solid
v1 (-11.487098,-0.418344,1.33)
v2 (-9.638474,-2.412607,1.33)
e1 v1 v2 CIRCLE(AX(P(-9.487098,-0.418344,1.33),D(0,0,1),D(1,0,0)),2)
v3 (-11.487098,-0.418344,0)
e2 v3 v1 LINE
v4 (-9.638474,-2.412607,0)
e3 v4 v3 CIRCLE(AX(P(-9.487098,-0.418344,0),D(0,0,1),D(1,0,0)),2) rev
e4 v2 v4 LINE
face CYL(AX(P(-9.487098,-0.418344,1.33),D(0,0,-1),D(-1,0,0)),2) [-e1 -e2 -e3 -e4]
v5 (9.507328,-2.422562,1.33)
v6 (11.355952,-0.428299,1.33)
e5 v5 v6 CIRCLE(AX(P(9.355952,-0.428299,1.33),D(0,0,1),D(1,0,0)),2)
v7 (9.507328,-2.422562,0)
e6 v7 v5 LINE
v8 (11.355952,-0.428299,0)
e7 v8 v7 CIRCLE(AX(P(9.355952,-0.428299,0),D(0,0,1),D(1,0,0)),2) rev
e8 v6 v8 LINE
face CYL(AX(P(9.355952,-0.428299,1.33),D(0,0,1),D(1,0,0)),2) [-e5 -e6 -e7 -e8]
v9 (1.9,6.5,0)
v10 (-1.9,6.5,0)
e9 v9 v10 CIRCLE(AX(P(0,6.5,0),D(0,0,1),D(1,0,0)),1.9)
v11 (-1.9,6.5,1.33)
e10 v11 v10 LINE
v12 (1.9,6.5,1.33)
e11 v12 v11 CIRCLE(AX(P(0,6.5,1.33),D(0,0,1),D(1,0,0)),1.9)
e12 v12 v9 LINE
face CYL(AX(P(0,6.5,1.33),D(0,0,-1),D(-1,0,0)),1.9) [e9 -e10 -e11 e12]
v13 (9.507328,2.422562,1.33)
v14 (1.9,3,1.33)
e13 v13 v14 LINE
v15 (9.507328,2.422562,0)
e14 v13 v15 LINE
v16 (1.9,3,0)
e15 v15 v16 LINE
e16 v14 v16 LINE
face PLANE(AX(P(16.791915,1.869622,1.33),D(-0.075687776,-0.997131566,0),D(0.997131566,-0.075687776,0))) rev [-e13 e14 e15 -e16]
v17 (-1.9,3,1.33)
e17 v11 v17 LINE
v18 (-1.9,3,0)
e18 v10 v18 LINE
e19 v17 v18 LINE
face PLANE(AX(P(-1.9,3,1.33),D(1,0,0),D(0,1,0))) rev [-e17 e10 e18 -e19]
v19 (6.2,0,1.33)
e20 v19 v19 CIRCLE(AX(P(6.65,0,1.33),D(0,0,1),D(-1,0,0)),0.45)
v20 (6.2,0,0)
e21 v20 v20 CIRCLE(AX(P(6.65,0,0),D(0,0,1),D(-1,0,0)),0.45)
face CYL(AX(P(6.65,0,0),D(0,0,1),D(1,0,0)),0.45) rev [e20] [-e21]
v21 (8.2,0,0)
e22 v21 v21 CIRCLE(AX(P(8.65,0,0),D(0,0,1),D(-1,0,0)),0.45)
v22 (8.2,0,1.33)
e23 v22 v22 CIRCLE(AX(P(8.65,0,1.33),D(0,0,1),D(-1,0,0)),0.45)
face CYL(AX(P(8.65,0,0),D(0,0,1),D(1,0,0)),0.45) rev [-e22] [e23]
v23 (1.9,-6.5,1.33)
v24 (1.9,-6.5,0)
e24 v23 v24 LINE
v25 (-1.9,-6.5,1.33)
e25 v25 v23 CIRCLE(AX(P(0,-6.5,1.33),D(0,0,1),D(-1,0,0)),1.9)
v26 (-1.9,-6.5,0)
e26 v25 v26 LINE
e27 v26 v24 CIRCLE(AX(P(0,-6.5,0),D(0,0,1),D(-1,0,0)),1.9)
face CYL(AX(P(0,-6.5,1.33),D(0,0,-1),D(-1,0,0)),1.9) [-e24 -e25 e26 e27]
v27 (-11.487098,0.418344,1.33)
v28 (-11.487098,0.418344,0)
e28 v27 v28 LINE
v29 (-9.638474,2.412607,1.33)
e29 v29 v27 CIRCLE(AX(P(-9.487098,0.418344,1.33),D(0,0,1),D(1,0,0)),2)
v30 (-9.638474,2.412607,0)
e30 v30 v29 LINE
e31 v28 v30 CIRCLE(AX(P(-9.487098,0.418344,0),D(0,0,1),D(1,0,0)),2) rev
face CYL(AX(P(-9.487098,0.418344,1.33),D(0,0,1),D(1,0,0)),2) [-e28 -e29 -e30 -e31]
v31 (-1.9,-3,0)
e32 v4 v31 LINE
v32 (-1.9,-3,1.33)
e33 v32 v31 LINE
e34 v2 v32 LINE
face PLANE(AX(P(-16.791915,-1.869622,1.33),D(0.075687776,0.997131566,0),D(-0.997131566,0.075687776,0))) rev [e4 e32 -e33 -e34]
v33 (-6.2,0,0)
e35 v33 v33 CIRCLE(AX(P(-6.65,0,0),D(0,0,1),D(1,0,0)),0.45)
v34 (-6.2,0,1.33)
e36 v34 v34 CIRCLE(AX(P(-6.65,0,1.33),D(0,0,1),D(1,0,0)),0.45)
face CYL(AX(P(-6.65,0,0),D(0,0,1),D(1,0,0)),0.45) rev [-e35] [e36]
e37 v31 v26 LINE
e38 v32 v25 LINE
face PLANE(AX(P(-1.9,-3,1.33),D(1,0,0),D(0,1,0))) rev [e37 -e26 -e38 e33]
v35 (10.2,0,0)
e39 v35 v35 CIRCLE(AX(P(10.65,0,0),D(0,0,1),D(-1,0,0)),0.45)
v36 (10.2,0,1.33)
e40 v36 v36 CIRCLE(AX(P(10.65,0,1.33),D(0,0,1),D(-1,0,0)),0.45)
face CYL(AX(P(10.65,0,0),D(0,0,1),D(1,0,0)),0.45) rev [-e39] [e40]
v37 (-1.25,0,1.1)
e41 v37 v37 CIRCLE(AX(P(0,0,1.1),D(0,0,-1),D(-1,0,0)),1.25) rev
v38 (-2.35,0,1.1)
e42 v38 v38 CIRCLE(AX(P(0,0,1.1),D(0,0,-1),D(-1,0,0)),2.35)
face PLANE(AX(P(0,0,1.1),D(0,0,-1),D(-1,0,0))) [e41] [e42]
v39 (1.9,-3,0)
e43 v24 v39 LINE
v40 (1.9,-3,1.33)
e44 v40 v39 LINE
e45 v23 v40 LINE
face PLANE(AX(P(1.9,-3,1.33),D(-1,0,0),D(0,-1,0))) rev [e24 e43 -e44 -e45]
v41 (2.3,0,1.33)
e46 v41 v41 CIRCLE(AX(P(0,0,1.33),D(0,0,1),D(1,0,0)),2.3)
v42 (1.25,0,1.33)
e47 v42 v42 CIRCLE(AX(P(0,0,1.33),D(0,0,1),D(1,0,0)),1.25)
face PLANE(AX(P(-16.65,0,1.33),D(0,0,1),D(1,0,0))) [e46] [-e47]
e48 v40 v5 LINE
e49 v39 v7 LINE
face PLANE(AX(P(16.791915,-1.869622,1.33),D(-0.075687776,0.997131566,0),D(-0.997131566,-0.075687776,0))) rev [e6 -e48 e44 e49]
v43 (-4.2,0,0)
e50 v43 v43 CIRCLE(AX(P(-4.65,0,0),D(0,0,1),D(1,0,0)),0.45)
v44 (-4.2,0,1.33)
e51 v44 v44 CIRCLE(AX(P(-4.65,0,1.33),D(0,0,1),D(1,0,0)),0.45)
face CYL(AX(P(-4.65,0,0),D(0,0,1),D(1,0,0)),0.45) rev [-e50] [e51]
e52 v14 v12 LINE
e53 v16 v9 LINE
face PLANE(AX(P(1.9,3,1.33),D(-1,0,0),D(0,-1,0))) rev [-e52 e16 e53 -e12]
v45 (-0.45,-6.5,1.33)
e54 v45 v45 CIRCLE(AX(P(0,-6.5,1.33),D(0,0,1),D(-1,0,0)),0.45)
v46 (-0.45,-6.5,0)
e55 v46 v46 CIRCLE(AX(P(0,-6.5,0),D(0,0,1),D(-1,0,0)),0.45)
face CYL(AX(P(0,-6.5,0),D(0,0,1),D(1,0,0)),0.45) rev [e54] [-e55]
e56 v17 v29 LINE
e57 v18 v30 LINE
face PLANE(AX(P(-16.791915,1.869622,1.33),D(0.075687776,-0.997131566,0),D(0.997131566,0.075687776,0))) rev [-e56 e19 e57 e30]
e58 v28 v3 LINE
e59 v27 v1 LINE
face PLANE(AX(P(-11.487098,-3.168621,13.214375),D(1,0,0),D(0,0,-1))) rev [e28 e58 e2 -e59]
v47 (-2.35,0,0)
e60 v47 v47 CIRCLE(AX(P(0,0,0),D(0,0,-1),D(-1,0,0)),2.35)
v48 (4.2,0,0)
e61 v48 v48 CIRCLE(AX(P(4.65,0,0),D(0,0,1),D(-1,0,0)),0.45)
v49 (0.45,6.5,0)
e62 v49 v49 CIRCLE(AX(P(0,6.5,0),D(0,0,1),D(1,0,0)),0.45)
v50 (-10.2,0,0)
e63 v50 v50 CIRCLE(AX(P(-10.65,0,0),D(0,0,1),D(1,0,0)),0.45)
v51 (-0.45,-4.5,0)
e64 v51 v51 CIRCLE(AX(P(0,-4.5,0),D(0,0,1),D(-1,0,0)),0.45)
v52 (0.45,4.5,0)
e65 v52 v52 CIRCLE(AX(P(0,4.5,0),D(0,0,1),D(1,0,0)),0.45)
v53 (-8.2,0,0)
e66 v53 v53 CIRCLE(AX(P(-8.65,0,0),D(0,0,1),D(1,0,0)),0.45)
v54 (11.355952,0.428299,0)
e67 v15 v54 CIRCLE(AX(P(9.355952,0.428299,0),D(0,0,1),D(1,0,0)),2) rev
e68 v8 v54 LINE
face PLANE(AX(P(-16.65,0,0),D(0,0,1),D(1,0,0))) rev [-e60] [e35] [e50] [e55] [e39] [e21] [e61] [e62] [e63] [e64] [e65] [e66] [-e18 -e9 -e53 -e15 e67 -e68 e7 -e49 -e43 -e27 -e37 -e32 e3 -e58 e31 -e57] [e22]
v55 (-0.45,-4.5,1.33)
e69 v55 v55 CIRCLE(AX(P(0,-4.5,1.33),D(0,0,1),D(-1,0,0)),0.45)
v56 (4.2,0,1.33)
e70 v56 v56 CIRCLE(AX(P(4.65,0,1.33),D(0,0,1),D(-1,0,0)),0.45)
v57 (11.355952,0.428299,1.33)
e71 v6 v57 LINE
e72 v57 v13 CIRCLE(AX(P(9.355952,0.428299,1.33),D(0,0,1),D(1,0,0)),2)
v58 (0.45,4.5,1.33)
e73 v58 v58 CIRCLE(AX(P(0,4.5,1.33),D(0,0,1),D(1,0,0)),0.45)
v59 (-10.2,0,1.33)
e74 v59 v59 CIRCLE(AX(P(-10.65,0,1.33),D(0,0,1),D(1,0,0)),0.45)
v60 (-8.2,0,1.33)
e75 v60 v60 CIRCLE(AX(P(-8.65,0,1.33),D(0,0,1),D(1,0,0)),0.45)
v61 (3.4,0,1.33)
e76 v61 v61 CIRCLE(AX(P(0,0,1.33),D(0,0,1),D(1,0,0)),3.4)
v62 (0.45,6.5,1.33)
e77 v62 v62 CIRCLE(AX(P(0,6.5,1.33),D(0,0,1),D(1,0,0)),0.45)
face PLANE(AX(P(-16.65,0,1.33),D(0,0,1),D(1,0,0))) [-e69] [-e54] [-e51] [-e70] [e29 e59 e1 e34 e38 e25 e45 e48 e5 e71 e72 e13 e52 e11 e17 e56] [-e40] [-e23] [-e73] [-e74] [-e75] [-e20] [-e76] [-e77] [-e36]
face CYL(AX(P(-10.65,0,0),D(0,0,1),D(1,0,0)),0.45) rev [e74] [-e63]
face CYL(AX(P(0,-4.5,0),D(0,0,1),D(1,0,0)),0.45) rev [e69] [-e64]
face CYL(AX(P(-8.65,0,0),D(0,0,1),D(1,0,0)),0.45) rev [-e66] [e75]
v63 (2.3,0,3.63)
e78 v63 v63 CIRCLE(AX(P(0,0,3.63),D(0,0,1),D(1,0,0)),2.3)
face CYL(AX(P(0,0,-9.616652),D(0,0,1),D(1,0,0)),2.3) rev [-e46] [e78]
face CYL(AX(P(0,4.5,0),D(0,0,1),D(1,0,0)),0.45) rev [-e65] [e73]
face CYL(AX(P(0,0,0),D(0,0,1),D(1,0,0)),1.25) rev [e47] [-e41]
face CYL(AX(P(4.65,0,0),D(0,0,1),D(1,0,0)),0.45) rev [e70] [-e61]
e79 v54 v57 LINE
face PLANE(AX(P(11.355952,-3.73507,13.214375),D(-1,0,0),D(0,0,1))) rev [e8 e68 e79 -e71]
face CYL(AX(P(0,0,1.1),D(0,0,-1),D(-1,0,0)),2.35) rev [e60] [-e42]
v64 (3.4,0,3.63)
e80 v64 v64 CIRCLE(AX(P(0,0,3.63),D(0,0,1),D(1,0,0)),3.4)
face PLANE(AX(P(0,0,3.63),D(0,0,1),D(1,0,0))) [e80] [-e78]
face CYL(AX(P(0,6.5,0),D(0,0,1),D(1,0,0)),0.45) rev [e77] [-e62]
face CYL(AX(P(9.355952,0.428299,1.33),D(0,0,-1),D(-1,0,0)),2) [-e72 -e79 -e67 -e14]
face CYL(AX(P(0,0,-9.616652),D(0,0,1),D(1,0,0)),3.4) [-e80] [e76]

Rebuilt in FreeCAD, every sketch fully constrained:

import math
import FreeCAD as App
import Part
import Sketcher
from FreeCAD import Vector
Q = App.Units.Quantity


def edges_at(feature, points):
    """Names of the edges that pass closest to the given points."""
    edges = feature.Shape.Edges
    near = lambda p: min(range(len(edges)), key=lambda i: edges[i].distToShape(Part.Vertex(*p))[0])
    return sorted({f"Edge{near(p) + 1}" for p in points})


def add_polygon(sketch, points):
    """Adds a closed chain of lines whose ends are joined by coincident constraints."""
    first, n = sketch.GeometryCount, len(points)
    for a, b in zip(points, points[1:] + points[:1]):
        sketch.addGeometry(Part.LineSegment(App.Vector(*a, 0), App.Vector(*b, 0)), False)
    for i in range(n):
        sketch.addConstraint(Sketcher.Constraint("Coincident", first + i, 2, first + (i + 1) % n, 1))

doc = App.newDocument("Part")
body = doc.addObject("PartDesign::Body", "Body")

# Sketch on XY plane
sketch1 = doc.addObject("Sketcher::SketchObject", "Sketch")
body.addObject(sketch1)
sketch1.AttachmentSupport = (doc.XY_Plane, [""])
sketch1.MapMode = "FlatFace"
sketch1.addGeometry(Part.LineSegment(Vector(-1.9, 3, 0), Vector(-16.8, 1.9, 0)), False)
sketch1.addGeometry(Part.ArcOfCircle(Part.Circle(Vector(-16.6, 0, 0), Vector(0, 0, 1), 1.9), math.radians(94), math.radians(266)), False)
sketch1.addGeometry(Part.LineSegment(Vector(-16.8, -1.9, 0), Vector(-1.9, -3, 0)), False)
sketch1.addGeometry(Part.LineSegment(Vector(-1.9, -3, 0), Vector(-1.9, -6.5, 0)), False)
sketch1.addGeometry(Part.ArcOfCircle(Part.Circle(Vector(0, -6.5, 0), Vector(0, 0, 1), 1.9), math.radians(180), math.radians(360)), False)
sketch1.addGeometry(Part.LineSegment(Vector(1.9, -6.5, 0), Vector(1.9, -3, 0)), False)
sketch1.addGeometry(Part.LineSegment(Vector(1.9, -3, 0), Vector(16.8, -1.9, 0)), False)
sketch1.addGeometry(Part.ArcOfCircle(Part.Circle(Vector(16.6, 0, 0), Vector(0, 0, 1), 1.9), math.radians(-86), math.radians(86)), False)
sketch1.addGeometry(Part.LineSegment(Vector(16.8, 1.9, 0), Vector(1.9, 3, 0)), False)
sketch1.addGeometry(Part.LineSegment(Vector(1.9, 3, 0), Vector(1.9, 6.5, 0)), False)
sketch1.addGeometry(Part.ArcOfCircle(Part.Circle(Vector(0, 6.5, 0), Vector(0, 0, 1), 1.9), math.radians(0), math.radians(180)), False)
sketch1.addGeometry(Part.LineSegment(Vector(-1.9, 6.5, 0), Vector(-1.9, 3, 0)), False)
sketch1.addConstraint(Sketcher.Constraint("Tangent", 0, 2, 1, 1))
sketch1.addConstraint(Sketcher.Constraint("Tangent", 1, 2, 2, 1))
sketch1.addConstraint(Sketcher.Constraint("Coincident", 2, 2, 3, 1))
sketch1.addConstraint(Sketcher.Constraint("Tangent", 3, 2, 4, 1))
sketch1.addConstraint(Sketcher.Constraint("Tangent", 4, 2, 5, 1))
sketch1.addConstraint(Sketcher.Constraint("Coincident", 5, 2, 6, 1))
sketch1.addConstraint(Sketcher.Constraint("Tangent", 6, 2, 7, 1))
sketch1.addConstraint(Sketcher.Constraint("Tangent", 7, 2, 8, 1))
sketch1.addConstraint(Sketcher.Constraint("Coincident", 8, 2, 9, 1))
sketch1.addConstraint(Sketcher.Constraint("Tangent", 9, 2, 10, 1))
sketch1.addConstraint(Sketcher.Constraint("Tangent", 10, 2, 11, 1))
sketch1.addConstraint(Sketcher.Constraint("Coincident", 11, 2, 0, 1))
sketch1.addConstraint(Sketcher.Constraint("Vertical", 3))
sketch1.addConstraint(Sketcher.Constraint("Vertical", 5))
sketch1.addConstraint(Sketcher.Constraint("Vertical", 9))
sketch1.addConstraint(Sketcher.Constraint("Vertical", 11))
sketch1.addConstraint(Sketcher.Constraint("Equal", 1, 7))
sketch1.addConstraint(Sketcher.Constraint("Equal", 4, 10))
sketch1.addConstraint(Sketcher.Constraint("Symmetric", 1, 3, 7, 3, -1, 1))
sketch1.addConstraint(Sketcher.Constraint("Symmetric", 4, 3, 10, 3, -1, 1))
sketch1.addConstraint(Sketcher.Constraint("Symmetric", 2, 2, 5, 2, -2))
sketch1.addConstraint(Sketcher.Constraint("Symmetric", 0, 2, 7, 2, -2))
sketch1.addConstraint(Sketcher.Constraint("Parallel", 0, 6))
sketch1.addConstraint(Sketcher.Constraint("Radius", 4, Q("1.9 mm")))
sketch1.addConstraint(Sketcher.Constraint("DistanceY", 3, 2, 3, 1, Q("3.5 mm")))
sketch1.addConstraint(Sketcher.Constraint("DistanceY", 2, 2, -1, 1, Q("3 mm")))
sketch1.addConstraint(Sketcher.Constraint("Radius", 1, Q("1.875 mm")))
sketch1.addConstraint(Sketcher.Constraint("DistanceX", 1, 3, 7, 3, Q("33.3 mm")))
pad1 = doc.addObject("PartDesign::Pad", "Pad")
body.addObject(pad1)
pad1.Profile = sketch1
pad1.Length = 1.33

# Sketch on XY plane
sketch2 = doc.addObject("Sketcher::SketchObject", "Sketch001")
body.addObject(sketch2)
sketch2.AttachmentSupport = (doc.XY_Plane, [""])
sketch2.MapMode = "FlatFace"
sketch2.AttachmentOffset = App.Placement(Vector(0, 0, 1.33), App.Rotation())
sketch2.addGeometry(Part.Circle(Vector(0, 0, 0), Vector(0, 0, 1), 3.4), False)
sketch2.addGeometry(Part.Circle(Vector(0, 0, 0), Vector(0, 0, 1), 2.3), False)
sketch2.addConstraint(Sketcher.Constraint("Coincident", 0, 3, -1, 1))
sketch2.addConstraint(Sketcher.Constraint("Coincident", 1, 3, -1, 1))
sketch2.addConstraint(Sketcher.Constraint("Diameter", 0, Q("6.8 mm")))
sketch2.addConstraint(Sketcher.Constraint("Diameter", 1, Q("4.6 mm")))
pad2 = doc.addObject("PartDesign::Pad", "Pad001")
body.addObject(pad2)
pad2.Profile = sketch2
pad2.Type = "TwoLengths"
pad2.Length = 2.3
pad2.Length2 = 1.33

# Sketch on XY plane
sketch3 = doc.addObject("Sketcher::SketchObject", "Sketch002")
body.addObject(sketch3)
sketch3.AttachmentSupport = (doc.XY_Plane, [""])
sketch3.MapMode = "FlatFace"
sketch3.AttachmentOffset = App.Placement(Vector(0, 0, 1.33), App.Rotation())
sketch3.addGeometry(Part.Circle(Vector(0, 0, 0), Vector(0, 0, 1), 1.2), False)
sketch3.addConstraint(Sketcher.Constraint("Coincident", 0, 3, -1, 1))
sketch3.addConstraint(Sketcher.Constraint("Diameter", 0, Q("2.5 mm")))
pocket1 = doc.addObject("PartDesign::Pocket", "Pocket")
body.addObject(pocket1)
pocket1.Profile = sketch3
pocket1.Type = "ThroughAll"

# Sketch on XY plane
sketch4 = doc.addObject("Sketcher::SketchObject", "Sketch003")
body.addObject(sketch4)
sketch4.AttachmentSupport = (doc.XY_Plane, [""])
sketch4.MapMode = "FlatFace"
sketch4.addGeometry(Part.Circle(Vector(0, 0, 0), Vector(0, 0, 1), 2.4), False)
sketch4.addConstraint(Sketcher.Constraint("Coincident", 0, 3, -1, 1))
sketch4.addConstraint(Sketcher.Constraint("Diameter", 0, Q("4.7 mm")))
pocket2 = doc.addObject("PartDesign::Pocket", "Pocket001")
body.addObject(pocket2)
pocket2.Profile = sketch4
pocket2.Length = 1.1
pocket2.Reversed = True

# Sketch on XY plane
sketch5 = doc.addObject("Sketcher::SketchObject", "Sketch004")
body.addObject(sketch5)
sketch5.AttachmentSupport = (doc.XY_Plane, [""])
sketch5.MapMode = "FlatFace"
sketch5.AttachmentOffset = App.Placement(Vector(0, 0, 1.33), App.Rotation())
sketch5.addGeometry(Part.Circle(Vector(0, 6.5, 0), Vector(0, 0, 1), 0.45), False)
sketch5.addGeometry(Part.Circle(Vector(-16.65, 0, 0), Vector(0, 0, 1), 0.45), False)
sketch5.addGeometry(Part.Circle(Vector(0, 4.5, 0), Vector(0, 0, 1), 0.45), False)
sketch5.addGeometry(Part.Circle(Vector(-14.65, 0, 0), Vector(0, 0, 1), 0.45), False)
sketch5.addGeometry(Part.Circle(Vector(-12.65, 0, 0), Vector(0, 0, 1), 0.45), False)
sketch5.addGeometry(Part.Circle(Vector(-10.65, 0, 0), Vector(0, 0, 1), 0.45), False)
sketch5.addGeometry(Part.Circle(Vector(-8.65, 0, 0), Vector(0, 0, 1), 0.45), False)
sketch5.addGeometry(Part.Circle(Vector(-6.65, 0, 0), Vector(0, 0, 1), 0.45), False)
sketch5.addGeometry(Part.Circle(Vector(-4.65, 0, 0), Vector(0, 0, 1), 0.45), False)
sketch5.addGeometry(Part.Circle(Vector(0, -4.5, 0), Vector(0, 0, 1), 0.45), False)
sketch5.addGeometry(Part.Circle(Vector(0, -6.5, 0), Vector(0, 0, 1), 0.45), False)
sketch5.addGeometry(Part.Circle(Vector(4.65, 0, 0), Vector(0, 0, 1), 0.45), False)
sketch5.addGeometry(Part.Circle(Vector(6.65, 0, 0), Vector(0, 0, 1), 0.45), False)
sketch5.addGeometry(Part.Circle(Vector(8.65, 0, 0), Vector(0, 0, 1), 0.45), False)
sketch5.addGeometry(Part.Circle(Vector(10.65, 0, 0), Vector(0, 0, 1), 0.45), False)
sketch5.addGeometry(Part.Circle(Vector(12.65, 0, 0), Vector(0, 0, 1), 0.45), False)
sketch5.addGeometry(Part.Circle(Vector(14.65, 0, 0), Vector(0, 0, 1), 0.45), False)
sketch5.addGeometry(Part.Circle(Vector(16.65, 0, 0), Vector(0, 0, 1), 0.45), False)
sketch5.addConstraint(Sketcher.Constraint("Equal", 0, 1))
sketch5.addConstraint(Sketcher.Constraint("Equal", 1, 2))
sketch5.addConstraint(Sketcher.Constraint("Equal", 2, 3))
sketch5.addConstraint(Sketcher.Constraint("Equal", 3, 4))
sketch5.addConstraint(Sketcher.Constraint("Equal", 4, 5))
sketch5.addConstraint(Sketcher.Constraint("Equal", 5, 6))
sketch5.addConstraint(Sketcher.Constraint("Equal", 6, 7))
sketch5.addConstraint(Sketcher.Constraint("Equal", 7, 8))
sketch5.addConstraint(Sketcher.Constraint("Equal", 8, 9))
sketch5.addConstraint(Sketcher.Constraint("Equal", 9, 10))
sketch5.addConstraint(Sketcher.Constraint("Equal", 10, 11))
sketch5.addConstraint(Sketcher.Constraint("Equal", 11, 12))
sketch5.addConstraint(Sketcher.Constraint("Equal", 12, 13))
sketch5.addConstraint(Sketcher.Constraint("Equal", 13, 14))
sketch5.addConstraint(Sketcher.Constraint("Equal", 14, 15))
sketch5.addConstraint(Sketcher.Constraint("Equal", 15, 16))
sketch5.addConstraint(Sketcher.Constraint("Equal", 16, 17))
sketch5.addConstraint(Sketcher.Constraint("Symmetric", 2, 3, 9, 3, -1, 1))
sketch5.addConstraint(Sketcher.Constraint("Symmetric", 0, 3, 10, 3, -1, 1))
sketch5.addConstraint(Sketcher.Constraint("Symmetric", 8, 3, 11, 3, -1, 1))
sketch5.addConstraint(Sketcher.Constraint("Symmetric", 7, 3, 12, 3, -1, 1))
sketch5.addConstraint(Sketcher.Constraint("Symmetric", 6, 3, 13, 3, -1, 1))
sketch5.addConstraint(Sketcher.Constraint("Symmetric", 5, 3, 14, 3, -1, 1))
sketch5.addConstraint(Sketcher.Constraint("Symmetric", 4, 3, 15, 3, -1, 1))
sketch5.addConstraint(Sketcher.Constraint("Symmetric", 3, 3, 16, 3, -1, 1))
sketch5.addConstraint(Sketcher.Constraint("Symmetric", 1, 3, 17, 3, -1, 1))
sketch5.addConstraint(Sketcher.Constraint("PointOnObject", 0, 3, -2))
sketch5.addConstraint(Sketcher.Constraint("PointOnObject", 1, 3, -1))
sketch5.addConstraint(Sketcher.Constraint("PointOnObject", 2, 3, -2))
sketch5.addConstraint(Sketcher.Constraint("PointOnObject", 3, 3, -1))
sketch5.addConstraint(Sketcher.Constraint("PointOnObject", 4, 3, -1))
sketch5.addConstraint(Sketcher.Constraint("PointOnObject", 5, 3, -1))
sketch5.addConstraint(Sketcher.Constraint("PointOnObject", 6, 3, -1))
sketch5.addConstraint(Sketcher.Constraint("PointOnObject", 7, 3, -1))
sketch5.addConstraint(Sketcher.Constraint("PointOnObject", 8, 3, -1))
sketch5.addConstraint(Sketcher.Constraint("Diameter", 0, Q("0.9 mm")))
sketch5.addConstraint(Sketcher.Constraint("DistanceY", 2, 3, 0, 3, Q("2 mm")))
sketch5.addConstraint(Sketcher.Constraint("DistanceX", 1, 3, 3, 3, Q("2 mm")))
sketch5.addConstraint(Sketcher.Constraint("DistanceX", 3, 3, 4, 3, Q("2 mm")))
sketch5.addConstraint(Sketcher.Constraint("DistanceX", 4, 3, 5, 3, Q("2 mm")))
sketch5.addConstraint(Sketcher.Constraint("DistanceX", 5, 3, 6, 3, Q("2 mm")))
sketch5.addConstraint(Sketcher.Constraint("DistanceX", 6, 3, 7, 3, Q("2 mm")))
sketch5.addConstraint(Sketcher.Constraint("DistanceX", 7, 3, 8, 3, Q("2 mm")))
sketch5.addConstraint(Sketcher.Constraint("DistanceY", 9, 3, 2, 3, Q("9 mm")))
sketch5.addConstraint(Sketcher.Constraint("DistanceX", 8, 3, 11, 3, Q("9.3 mm")))
pocket3 = doc.addObject("PartDesign::Pocket", "Pocket002")
body.addObject(pocket3)
pocket3.Profile = sketch5
pocket3.Type = "ThroughAll"

# Sketch on XY plane
sketch6 = doc.addObject("Sketcher::SketchObject", "Sketch005")
body.addObject(sketch6)
sketch6.AttachmentSupport = (doc.XY_Plane, [""])
sketch6.MapMode = "FlatFace"
add_polygon(sketch6, [(20, 4), (20, -4), (11, -4), (11, 4)])  # lines 0-3
add_polygon(sketch6, [(-11, 3), (-11, -3), (-20, -3), (-20, 3)])  # lines 4-7
sketch6.addConstraint(Sketcher.Constraint("Vertical", 0))
sketch6.addConstraint(Sketcher.Constraint("Horizontal", 1))
sketch6.addConstraint(Sketcher.Constraint("Vertical", 2))
sketch6.addConstraint(Sketcher.Constraint("Horizontal", 3))
sketch6.addConstraint(Sketcher.Constraint("Vertical", 4))
sketch6.addConstraint(Sketcher.Constraint("Horizontal", 5))
sketch6.addConstraint(Sketcher.Constraint("Vertical", 6))
sketch6.addConstraint(Sketcher.Constraint("Horizontal", 7))
sketch6.addConstraint(Sketcher.Constraint("DistanceY", 4, 2, 4, 1, Q("6.617342 mm")))
sketch6.addConstraint(Sketcher.Constraint("DistanceX", 4, 2, -1, 1, Q("11.487098 mm")))
sketch6.addConstraint(Sketcher.Constraint("DistanceX", 1, 2, 1, 1, Q("8.843573 mm")))
sketch6.addConstraint(Sketcher.Constraint("DistanceX", 5, 2, 5, 1, Q("8.543023 mm")))
sketch6.addConstraint(Sketcher.Constraint("DistanceY", 0, 2, 0, 1, Q("7.939117 mm")))
sketch6.addConstraint(Sketcher.Constraint("DistanceY", 0, 2, -1, 1, Q("3.73507 mm")))
sketch6.addConstraint(Sketcher.Constraint("DistanceY", 4, 2, -1, 1, Q("3.168621 mm")))
sketch6.addConstraint(Sketcher.Constraint("DistanceX", 4, 2, 1, 2, Q("22.84305 mm")))
pocket4 = doc.addObject("PartDesign::Pocket", "Pocket003")
body.addObject(pocket4)
pocket4.Profile = sketch6
pocket4.Length = 1.33
pocket4.Reversed = True
doc.recompute()

fillet = doc.addObject("PartDesign::Fillet", "Fillet")
body.addObject(fillet)
fillet.Base = (pocket4, edges_at(pocket4, [
    (11.356, -2.282, 0.665),
    (11.356, 2.282, 0.665),
    (-11.487, -2.272, 0.665),
    (-11.487, 2.272, 0.665),
]))
fillet.Radius = 2

doc.recompute()
